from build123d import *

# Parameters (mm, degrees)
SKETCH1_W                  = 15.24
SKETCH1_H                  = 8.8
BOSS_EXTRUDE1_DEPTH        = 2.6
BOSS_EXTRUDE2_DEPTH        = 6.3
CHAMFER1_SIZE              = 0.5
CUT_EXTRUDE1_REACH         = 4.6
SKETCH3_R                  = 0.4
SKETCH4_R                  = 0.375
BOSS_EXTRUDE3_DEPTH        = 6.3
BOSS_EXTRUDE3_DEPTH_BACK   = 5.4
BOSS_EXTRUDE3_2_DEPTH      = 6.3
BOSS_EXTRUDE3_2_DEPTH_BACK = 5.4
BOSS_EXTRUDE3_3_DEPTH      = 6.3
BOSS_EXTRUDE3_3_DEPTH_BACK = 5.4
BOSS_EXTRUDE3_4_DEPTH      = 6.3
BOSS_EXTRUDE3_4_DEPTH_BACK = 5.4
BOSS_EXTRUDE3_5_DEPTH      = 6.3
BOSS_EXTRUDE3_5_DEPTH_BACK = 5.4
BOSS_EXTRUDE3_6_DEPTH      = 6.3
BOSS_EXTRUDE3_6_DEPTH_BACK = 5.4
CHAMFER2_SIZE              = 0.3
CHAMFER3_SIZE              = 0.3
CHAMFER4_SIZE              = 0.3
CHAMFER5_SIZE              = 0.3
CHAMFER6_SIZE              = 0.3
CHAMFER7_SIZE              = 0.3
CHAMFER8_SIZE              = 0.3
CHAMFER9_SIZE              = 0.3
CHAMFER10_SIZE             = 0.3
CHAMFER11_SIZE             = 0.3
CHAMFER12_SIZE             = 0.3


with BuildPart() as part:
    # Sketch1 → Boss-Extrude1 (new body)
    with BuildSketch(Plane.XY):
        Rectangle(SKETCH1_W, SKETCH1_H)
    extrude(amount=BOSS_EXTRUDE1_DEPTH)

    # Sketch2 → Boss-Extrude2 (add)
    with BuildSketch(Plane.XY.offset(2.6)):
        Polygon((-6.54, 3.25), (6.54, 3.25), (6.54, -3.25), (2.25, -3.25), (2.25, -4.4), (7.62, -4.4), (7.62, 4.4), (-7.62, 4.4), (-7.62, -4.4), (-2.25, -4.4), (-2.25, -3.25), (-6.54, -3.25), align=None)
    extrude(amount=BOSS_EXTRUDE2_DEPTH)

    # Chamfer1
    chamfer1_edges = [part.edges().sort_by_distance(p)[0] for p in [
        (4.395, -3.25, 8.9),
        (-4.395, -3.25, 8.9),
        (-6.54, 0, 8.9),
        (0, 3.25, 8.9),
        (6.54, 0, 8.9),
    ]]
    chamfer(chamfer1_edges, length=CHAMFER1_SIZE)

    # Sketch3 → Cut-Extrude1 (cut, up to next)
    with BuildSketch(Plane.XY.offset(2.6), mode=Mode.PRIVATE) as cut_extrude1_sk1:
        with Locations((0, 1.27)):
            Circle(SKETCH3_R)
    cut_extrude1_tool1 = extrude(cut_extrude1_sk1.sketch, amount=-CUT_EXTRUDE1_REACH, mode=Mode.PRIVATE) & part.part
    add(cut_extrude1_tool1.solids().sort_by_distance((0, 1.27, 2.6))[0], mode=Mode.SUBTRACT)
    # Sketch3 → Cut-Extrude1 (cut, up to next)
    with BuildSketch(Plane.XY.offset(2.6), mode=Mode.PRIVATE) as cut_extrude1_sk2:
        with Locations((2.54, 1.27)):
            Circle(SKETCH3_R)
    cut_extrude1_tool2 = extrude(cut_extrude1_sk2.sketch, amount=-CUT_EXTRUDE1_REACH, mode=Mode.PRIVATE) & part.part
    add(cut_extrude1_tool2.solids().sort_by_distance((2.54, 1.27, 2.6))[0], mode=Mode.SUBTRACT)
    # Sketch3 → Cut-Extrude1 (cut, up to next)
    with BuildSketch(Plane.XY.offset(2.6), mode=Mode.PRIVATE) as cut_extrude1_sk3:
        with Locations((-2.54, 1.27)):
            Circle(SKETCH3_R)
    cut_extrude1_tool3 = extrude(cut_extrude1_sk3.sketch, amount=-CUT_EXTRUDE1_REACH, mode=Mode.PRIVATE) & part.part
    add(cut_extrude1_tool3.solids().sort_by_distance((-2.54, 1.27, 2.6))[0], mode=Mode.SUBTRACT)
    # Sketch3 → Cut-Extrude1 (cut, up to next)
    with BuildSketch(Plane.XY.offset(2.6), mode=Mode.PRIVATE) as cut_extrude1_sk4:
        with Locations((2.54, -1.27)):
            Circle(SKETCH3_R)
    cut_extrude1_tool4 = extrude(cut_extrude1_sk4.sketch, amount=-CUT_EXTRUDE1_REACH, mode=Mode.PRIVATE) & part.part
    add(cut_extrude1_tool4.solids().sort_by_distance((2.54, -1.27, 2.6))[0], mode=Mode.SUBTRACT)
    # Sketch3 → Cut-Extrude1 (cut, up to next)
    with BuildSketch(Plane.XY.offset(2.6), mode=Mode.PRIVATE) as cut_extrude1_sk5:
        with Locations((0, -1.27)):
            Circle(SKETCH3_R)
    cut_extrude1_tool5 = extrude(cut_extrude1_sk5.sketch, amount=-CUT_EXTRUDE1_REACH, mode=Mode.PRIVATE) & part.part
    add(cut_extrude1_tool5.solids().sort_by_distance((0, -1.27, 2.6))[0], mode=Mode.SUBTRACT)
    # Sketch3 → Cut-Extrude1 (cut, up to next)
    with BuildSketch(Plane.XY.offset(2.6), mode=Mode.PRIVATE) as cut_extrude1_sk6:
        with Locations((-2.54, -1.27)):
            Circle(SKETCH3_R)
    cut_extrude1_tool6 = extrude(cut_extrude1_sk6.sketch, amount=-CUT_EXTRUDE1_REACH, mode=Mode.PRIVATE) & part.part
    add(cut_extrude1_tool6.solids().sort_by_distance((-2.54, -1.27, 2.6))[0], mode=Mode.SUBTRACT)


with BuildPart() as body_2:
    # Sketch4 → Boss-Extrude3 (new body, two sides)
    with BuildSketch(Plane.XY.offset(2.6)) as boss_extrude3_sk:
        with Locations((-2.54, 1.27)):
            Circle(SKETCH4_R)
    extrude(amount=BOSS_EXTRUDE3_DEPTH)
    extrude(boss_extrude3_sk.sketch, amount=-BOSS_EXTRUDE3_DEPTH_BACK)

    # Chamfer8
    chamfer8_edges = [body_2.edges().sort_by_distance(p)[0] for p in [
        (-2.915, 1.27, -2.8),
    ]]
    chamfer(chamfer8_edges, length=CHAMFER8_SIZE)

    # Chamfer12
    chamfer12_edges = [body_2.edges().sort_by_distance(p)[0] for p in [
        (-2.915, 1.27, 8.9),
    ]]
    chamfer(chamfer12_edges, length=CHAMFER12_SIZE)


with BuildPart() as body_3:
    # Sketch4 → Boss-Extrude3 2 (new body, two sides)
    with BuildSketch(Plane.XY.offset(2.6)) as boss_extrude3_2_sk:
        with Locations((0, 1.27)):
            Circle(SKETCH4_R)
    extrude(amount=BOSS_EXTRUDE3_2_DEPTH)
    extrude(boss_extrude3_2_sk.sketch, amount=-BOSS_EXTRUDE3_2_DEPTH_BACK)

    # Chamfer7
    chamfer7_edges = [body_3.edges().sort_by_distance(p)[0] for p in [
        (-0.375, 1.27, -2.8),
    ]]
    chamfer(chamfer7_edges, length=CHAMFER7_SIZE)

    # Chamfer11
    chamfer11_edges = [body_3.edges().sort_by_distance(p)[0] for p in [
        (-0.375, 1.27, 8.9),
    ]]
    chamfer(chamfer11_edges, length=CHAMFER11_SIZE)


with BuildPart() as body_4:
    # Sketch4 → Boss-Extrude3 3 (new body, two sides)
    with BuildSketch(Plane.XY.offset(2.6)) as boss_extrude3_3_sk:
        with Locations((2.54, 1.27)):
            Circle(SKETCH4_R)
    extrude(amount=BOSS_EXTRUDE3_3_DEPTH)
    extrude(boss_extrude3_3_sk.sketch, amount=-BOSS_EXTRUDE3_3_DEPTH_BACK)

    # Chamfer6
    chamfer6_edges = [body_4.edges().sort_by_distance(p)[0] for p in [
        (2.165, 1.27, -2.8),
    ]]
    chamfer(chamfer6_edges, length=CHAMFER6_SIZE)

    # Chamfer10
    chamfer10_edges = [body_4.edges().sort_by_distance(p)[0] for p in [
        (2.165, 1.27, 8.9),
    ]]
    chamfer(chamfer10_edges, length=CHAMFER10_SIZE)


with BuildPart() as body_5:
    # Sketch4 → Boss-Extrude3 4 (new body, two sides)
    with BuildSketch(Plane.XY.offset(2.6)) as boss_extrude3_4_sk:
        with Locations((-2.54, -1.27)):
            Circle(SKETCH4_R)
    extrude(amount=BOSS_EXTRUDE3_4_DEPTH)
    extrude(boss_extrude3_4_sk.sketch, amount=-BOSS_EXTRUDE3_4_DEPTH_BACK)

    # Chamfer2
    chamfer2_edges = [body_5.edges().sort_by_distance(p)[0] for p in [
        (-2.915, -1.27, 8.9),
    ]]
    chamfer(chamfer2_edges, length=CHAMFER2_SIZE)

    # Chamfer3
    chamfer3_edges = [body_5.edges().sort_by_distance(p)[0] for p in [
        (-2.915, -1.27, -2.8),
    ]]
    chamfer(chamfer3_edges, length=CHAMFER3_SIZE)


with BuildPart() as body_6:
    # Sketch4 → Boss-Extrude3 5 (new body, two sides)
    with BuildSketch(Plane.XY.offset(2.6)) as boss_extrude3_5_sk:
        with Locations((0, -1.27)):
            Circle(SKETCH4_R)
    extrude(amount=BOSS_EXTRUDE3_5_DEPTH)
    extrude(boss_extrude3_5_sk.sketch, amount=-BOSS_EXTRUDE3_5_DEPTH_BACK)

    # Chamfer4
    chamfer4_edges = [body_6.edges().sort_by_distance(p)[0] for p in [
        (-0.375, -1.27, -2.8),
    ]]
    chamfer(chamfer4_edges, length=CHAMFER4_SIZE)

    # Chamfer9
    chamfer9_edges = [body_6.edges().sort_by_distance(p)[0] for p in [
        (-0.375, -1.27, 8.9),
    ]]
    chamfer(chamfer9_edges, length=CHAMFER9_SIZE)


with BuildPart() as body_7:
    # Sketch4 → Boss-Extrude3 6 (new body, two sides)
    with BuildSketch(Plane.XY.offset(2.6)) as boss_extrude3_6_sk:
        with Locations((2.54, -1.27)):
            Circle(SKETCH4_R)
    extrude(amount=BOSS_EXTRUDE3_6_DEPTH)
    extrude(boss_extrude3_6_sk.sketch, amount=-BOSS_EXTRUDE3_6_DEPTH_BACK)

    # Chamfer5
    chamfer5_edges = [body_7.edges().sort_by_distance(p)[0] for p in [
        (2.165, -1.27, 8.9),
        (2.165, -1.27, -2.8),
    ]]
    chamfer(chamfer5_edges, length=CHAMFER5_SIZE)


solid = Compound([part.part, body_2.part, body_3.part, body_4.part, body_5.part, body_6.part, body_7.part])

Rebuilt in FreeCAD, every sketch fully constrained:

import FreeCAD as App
import Part
import Sketcher

V = App.Vector
Q = App.Units.Quantity


def edges_at(feature, points):
    """Names of the edges that pass closest to the given points."""
    edges = feature.Shape.Edges
    near = lambda p: min(range(len(edges)), key=lambda i: edges[i].distToShape(Part.Vertex(*p))[0])
    return sorted({f"Edge{near(p) + 1}" for p in points})


def add_polygon(sketch, points):
    """Adds a closed chain of lines whose ends are joined by coincident constraints."""
    first, n = sketch.GeometryCount, len(points)
    for a, b in zip(points, points[1:] + points[:1]):
        sketch.addGeometry(Part.LineSegment(App.Vector(*a, 0), App.Vector(*b, 0)), False)
    for i in range(n):
        sketch.addConstraint(Sketcher.Constraint("Coincident", first + i, 2, first + (i + 1) % n, 1))

doc = App.newDocument("Part")
body = doc.addObject("PartDesign::Body", "Body")

# Sketch on XY plane
sketch1 = body.newObject("Sketcher::SketchObject", "Sketch")
sketch1.AttachmentSupport = (doc.getObject("XY_Plane"), [""])
sketch1.MapMode = "FlatFace"
add_polygon(sketch1, [(-8, 4), (-8, -4), (8, -4), (8, 4)])  # lines 0-3
sketch1.addConstraint([
    Sketcher.Constraint("Vertical", 0),
    Sketcher.Constraint("Horizontal", 1),
    Sketcher.Constraint("Vertical", 2),
    Sketcher.Constraint("Horizontal", 3),
    Sketcher.Constraint("Symmetric", 0, 2, 2, 2, -1, 1),
    Sketcher.Constraint("DistanceY", 0, 2, 0, 1, Q("8.8 mm")),
    Sketcher.Constraint("DistanceX", 1, 1, 1, 2, Q("15.24 mm")),
])
pad1 = body.newObject("PartDesign::Pad", "Pad")
pad1.Profile = sketch1
pad1.Length = 2.6

# Sketch on XY plane
sketch2 = body.newObject("Sketcher::SketchObject", "Sketch001")
sketch2.AttachmentSupport = (doc.getObject("XY_Plane"), [""])
sketch2.MapMode = "FlatFace"
sketch2.AttachmentOffset = App.Placement(V(0, 0, 2.6), App.Rotation())
add_polygon(sketch2, [(-6.5, 3.2), (6.5, 3.2), (6.5, -3.2), (2.2, -3.2), (2.2, -4.4), (7.6, -4.4), (7.6, 4.4), (-7.6, 4.4), (-7.6, -4.4), (-2.2, -4.4), (-2.2, -3.2), (-6.5, -3.2)])  # lines 0-11
sketch2.addConstraint([
    Sketcher.Constraint("Horizontal", 0),
    Sketcher.Constraint("Vertical", 1),
    Sketcher.Constraint("Horizontal", 2),
    Sketcher.Constraint("Vertical", 3),
    Sketcher.Constraint("Horizontal", 4),
    Sketcher.Constraint("Vertical", 5),
    Sketcher.Constraint("Horizontal", 6),
    Sketcher.Constraint("Vertical", 7),
    Sketcher.Constraint("Horizontal", 8),
    Sketcher.Constraint("Vertical", 9),
    Sketcher.Constraint("Horizontal", 10),
    Sketcher.Constraint("Vertical", 11),
    Sketcher.Constraint("Symmetric", 4, 2, 6, 2, -1, 1),
    Sketcher.Constraint("Symmetric", 0, 2, 10, 2, -1, 1),
    Sketcher.Constraint("Symmetric", 3, 2, 8, 2, -2),
    Sketcher.Constraint("Horizontal", 2, 2, 9, 2),
    Sketcher.Constraint("DistanceY", 1, 2, 1, 1, Q("6.5 mm")),
    Sketcher.Constraint("DistanceY", 5, 1, 5, 2, Q("8.8 mm")),
    Sketcher.Constraint("DistanceX", 0, 1, 0, 2, Q("13.08 mm")),
    Sketcher.Constraint("DistanceX", 2, 2, 2, 1, Q("4.29 mm")),
    Sketcher.Constraint("DistanceX", 4, 1, 4, 2, Q("5.37 mm")),
])
pad2 = body.newObject("PartDesign::Pad", "Pad001")
pad2.Profile = sketch2
pad2.Length = 6.3
doc.recompute()

chamfer = body.newObject("PartDesign::Chamfer", "Chamfer")
chamfer.Base = (pad2, edges_at(pad2, [
    (4.395, -3.25, 8.9),
    (-4.395, -3.25, 8.9),
    (-6.54, 0, 8.9),
    (0, 3.25, 8.9),
    (6.54, 0, 8.9),
]))
chamfer.Size = 0.5

# Sketch on XY plane
sketch3 = body.newObject("Sketcher::SketchObject", "Sketch002")
sketch3.AttachmentSupport = (doc.getObject("XY_Plane"), [""])
sketch3.MapMode = "FlatFace"
sketch3.AttachmentOffset = App.Placement(V(0, 0, 2.6), App.Rotation())
sketch3.addGeometry(Part.Circle(V(0, 1.27, 0), V(0, 0, 1), 0.4), False)
sketch3.addConstraint([
    Sketcher.Constraint("PointOnObject", 0, 3, -2),
    Sketcher.Constraint("Diameter", 0, Q("0.8 mm")),
    Sketcher.Constraint("DistanceY", -1, 1, 0, 3, Q("1.27 mm")),
])
pocket1 = body.newObject("PartDesign::Pocket", "Pocket")
pocket1.Profile = sketch3
pocket1.Type = "UpToFirst"

# Sketch on XY plane
sketch4 = body.newObject("Sketcher::SketchObject", "Sketch003")
sketch4.AttachmentSupport = (doc.getObject("XY_Plane"), [""])
sketch4.MapMode = "FlatFace"
sketch4.AttachmentOffset = App.Placement(V(0, 0, 2.6), App.Rotation())
sketch4.addGeometry(Part.Circle(V(2.54, 1.27, 0), V(0, 0, 1), 0.4), False)
sketch4.addConstraint([
    Sketcher.Constraint("Diameter", 0, Q("0.8 mm")),
    Sketcher.Constraint("DistanceX", -1, 1, 0, 3, Q("2.54 mm")),
    Sketcher.Constraint("DistanceY", -1, 1, 0, 3, Q("1.27 mm")),
])
pocket2 = body.newObject("PartDesign::Pocket", "Pocket001")
pocket2.Profile = sketch4
pocket2.Type = "UpToFirst"

# Sketch on XY plane
sketch5 = body.newObject("Sketcher::SketchObject", "Sketch004")
sketch5.AttachmentSupport = (doc.getObject("XY_Plane"), [""])
sketch5.MapMode = "FlatFace"
sketch5.AttachmentOffset = App.Placement(V(0, 0, 2.6), App.Rotation())
sketch5.addGeometry(Part.Circle(V(-2.54, 1.27, 0), V(0, 0, 1), 0.4), False)
sketch5.addConstraint([
    Sketcher.Constraint("Diameter", 0, Q("0.8 mm")),
    Sketcher.Constraint("DistanceX", 0, 3, -1, 1, Q("2.54 mm")),
    Sketcher.Constraint("DistanceY", -1, 1, 0, 3, Q("1.27 mm")),
])
pocket3 = body.newObject("PartDesign::Pocket", "Pocket002")
pocket3.Profile = sketch5
pocket3.Type = "UpToFirst"

# Sketch on XY plane
sketch6 = body.newObject("Sketcher::SketchObject", "Sketch005")
sketch6.AttachmentSupport = (doc.getObject("XY_Plane"), [""])
sketch6.MapMode = "FlatFace"
sketch6.AttachmentOffset = App.Placement(V(0, 0, 2.6), App.Rotation())
sketch6.addGeometry(Part.Circle(V(2.54, -1.27, 0), V(0, 0, 1), 0.4), False)
sketch6.addConstraint([
    Sketcher.Constraint("Diameter", 0, Q("0.8 mm")),
    Sketcher.Constraint("DistanceX", -1, 1, 0, 3, Q("2.54 mm")),
    Sketcher.Constraint("DistanceY", 0, 3, -1, 1, Q("1.27 mm")),
])
pocket4 = body.newObject("PartDesign::Pocket", "Pocket003")
pocket4.Profile = sketch6
pocket4.Type = "UpToFirst"

# Sketch on XY plane
sketch7 = body.newObject("Sketcher::SketchObject", "Sketch006")
sketch7.AttachmentSupport = (doc.getObject("XY_Plane"), [""])
sketch7.MapMode = "FlatFace"
sketch7.AttachmentOffset = App.Placement(V(0, 0, 2.6), App.Rotation())
sketch7.addGeometry(Part.Circle(V(0, -1.27, 0), V(0, 0, 1), 0.4), False)
sketch7.addConstraint([
    Sketcher.Constraint("PointOnObject", 0, 3, -2),
    Sketcher.Constraint("Diameter", 0, Q("0.8 mm")),
    Sketcher.Constraint("DistanceY", 0, 3, -1, 1, Q("1.27 mm")),
])
pocket5 = body.newObject("PartDesign::Pocket", "Pocket004")
pocket5.Profile = sketch7
pocket5.Type = "UpToFirst"

# Sketch on XY plane
sketch8 = body.newObject("Sketcher::SketchObject", "Sketch007")
sketch8.AttachmentSupport = (doc.getObject("XY_Plane"), [""])
sketch8.MapMode = "FlatFace"
sketch8.AttachmentOffset = App.Placement(V(0, 0, 2.6), App.Rotation())
sketch8.addGeometry(Part.Circle(V(-2.54, -1.27, 0), V(0, 0, 1), 0.4), False)
sketch8.addConstraint([
    Sketcher.Constraint("Diameter", 0, Q("0.8 mm")),
    Sketcher.Constraint("DistanceX", 0, 3, -1, 1, Q("2.54 mm")),
    Sketcher.Constraint("DistanceY", 0, 3, -1, 1, Q("1.27 mm")),
])
pocket6 = body.newObject("PartDesign::Pocket", "Pocket005")
pocket6.Profile = sketch8
pocket6.Type = "UpToFirst"
body2 = doc.addObject("PartDesign::Body", "Body001")

# Sketch on XY plane
sketch9 = body2.newObject("Sketcher::SketchObject", "Sketch008")
sketch9.AttachmentSupport = (doc.getObject("XY_Plane001"), [""])
sketch9.MapMode = "FlatFace"
sketch9.AttachmentOffset = App.Placement(V(0, 0, 2.6), App.Rotation())
sketch9.addGeometry(Part.Circle(V(-2.54, 1.27, 0), V(0, 0, 1), 0.38), False)
sketch9.addConstraint([
    Sketcher.Constraint("Diameter", 0, Q("0.75 mm")),
    Sketcher.Constraint("DistanceX", 0, 3, -1, 1, Q("2.54 mm")),
    Sketcher.Constraint("DistanceY", -1, 1, 0, 3, Q("1.27 mm")),
])
pad3 = body2.newObject("PartDesign::Pad", "Pad002")
pad3.Profile = sketch9
pad3.Type = "TwoLengths"
pad3.Length = 6.3
pad3.Length2 = 5.4
doc.recompute()

chamfer2 = body2.newObject("PartDesign::Chamfer", "Chamfer001")
chamfer2.Base = (pad3, edges_at(pad3, [(-2.915, 1.27, -2.8)]))
chamfer2.Size = 0.3
doc.recompute()

chamfer3 = body2.newObject("PartDesign::Chamfer", "Chamfer002")
chamfer3.Base = (chamfer2, edges_at(chamfer2, [(-2.915, 1.27, 8.9)]))
chamfer3.Size = 0.3
body3 = doc.addObject("PartDesign::Body", "Body002")

# Sketch on XY plane
sketch10 = body3.newObject("Sketcher::SketchObject", "Sketch009")
sketch10.AttachmentSupport = (doc.getObject("XY_Plane002"), [""])
sketch10.MapMode = "FlatFace"
sketch10.AttachmentOffset = App.Placement(V(0, 0, 2.6), App.Rotation())
sketch10.addGeometry(Part.Circle(V(0, 1.27, 0), V(0, 0, 1), 0.38), False)
sketch10.addConstraint([
    Sketcher.Constraint("PointOnObject", 0, 3, -2),
    Sketcher.Constraint("Diameter", 0, Q("0.75 mm")),
    Sketcher.Constraint("DistanceY", -1, 1, 0, 3, Q("1.27 mm")),
])
pad4 = body3.newObject("PartDesign::Pad", "Pad003")
pad4.Profile = sketch10
pad4.Type = "TwoLengths"
pad4.Length = 6.3
pad4.Length2 = 5.4
doc.recompute()

chamfer4 = body3.newObject("PartDesign::Chamfer", "Chamfer003")
chamfer4.Base = (pad4, edges_at(pad4, [(-0.375, 1.27, -2.8)]))
chamfer4.Size = 0.3
doc.recompute()

chamfer5 = body3.newObject("PartDesign::Chamfer", "Chamfer004")
chamfer5.Base = (chamfer4, edges_at(chamfer4, [(-0.375, 1.27, 8.9)]))
chamfer5.Size = 0.3
body4 = doc.addObject("PartDesign::Body", "Body003")

# Sketch on XY plane
sketch11 = body4.newObject("Sketcher::SketchObject", "Sketch010")
sketch11.AttachmentSupport = (doc.getObject("XY_Plane003"), [""])
sketch11.MapMode = "FlatFace"
sketch11.AttachmentOffset = App.Placement(V(0, 0, 2.6), App.Rotation())
sketch11.addGeometry(Part.Circle(V(2.54, 1.27, 0), V(0, 0, 1), 0.38), False)
sketch11.addConstraint([
    Sketcher.Constraint("Diameter", 0, Q("0.75 mm")),
    Sketcher.Constraint("DistanceX", -1, 1, 0, 3, Q("2.54 mm")),
    Sketcher.Constraint("DistanceY", -1, 1, 0, 3, Q("1.27 mm")),
])
pad5 = body4.newObject("PartDesign::Pad", "Pad004")
pad5.Profile = sketch11
pad5.Type = "TwoLengths"
pad5.Length = 6.3
pad5.Length2 = 5.4
doc.recompute()

chamfer6 = body4.newObject("PartDesign::Chamfer", "Chamfer005")
chamfer6.Base = (pad5, edges_at(pad5, [(2.165, 1.27, -2.8)]))
chamfer6.Size = 0.3
doc.recompute()

chamfer7 = body4.newObject("PartDesign::Chamfer", "Chamfer006")
chamfer7.Base = (chamfer6, edges_at(chamfer6, [(2.165, 1.27, 8.9)]))
chamfer7.Size = 0.3
body5 = doc.addObject("PartDesign::Body", "Body004")

# Sketch on XY plane
sketch12 = body5.newObject("Sketcher::SketchObject", "Sketch011")
sketch12.AttachmentSupport = (doc.getObject("XY_Plane004"), [""])
sketch12.MapMode = "FlatFace"
sketch12.AttachmentOffset = App.Placement(V(0, 0, 2.6), App.Rotation())
sketch12.addGeometry(Part.Circle(V(-2.54, -1.27, 0), V(0, 0, 1), 0.38), False)
sketch12.addConstraint([
    Sketcher.Constraint("Diameter", 0, Q("0.75 mm")),
    Sketcher.Constraint("DistanceX", 0, 3, -1, 1, Q("2.54 mm")),
    Sketcher.Constraint("DistanceY", 0, 3, -1, 1, Q("1.27 mm")),
])
pad6 = body5.newObject("PartDesign::Pad", "Pad005")
pad6.Profile = sketch12
pad6.Type = "TwoLengths"
pad6.Length = 6.3
pad6.Length2 = 5.4
doc.recompute()

chamfer8 = body5.newObject("PartDesign::Chamfer", "Chamfer007")
chamfer8.Base = (pad6, edges_at(pad6, [(-2.915, -1.27, 8.9)]))
chamfer8.Size = 0.3
doc.recompute()

chamfer9 = body5.newObject("PartDesign::Chamfer", "Chamfer008")
chamfer9.Base = (chamfer8, edges_at(chamfer8, [(-2.915, -1.27, -2.8)]))
chamfer9.Size = 0.3
body6 = doc.addObject("PartDesign::Body", "Body005")

# Sketch on XY plane
sketch13 = body6.newObject("Sketcher::SketchObject", "Sketch012")
sketch13.AttachmentSupport = (doc.getObject("XY_Plane005"), [""])
sketch13.MapMode = "FlatFace"
sketch13.AttachmentOffset = App.Placement(V(0, 0, 2.6), App.Rotation())
sketch13.addGeometry(Part.Circle(V(0, -1.27, 0), V(0, 0, 1), 0.38), False)
sketch13.addConstraint([
    Sketcher.Constraint("PointOnObject", 0, 3, -2),
    Sketcher.Constraint("Diameter", 0, Q("0.75 mm")),
    Sketcher.Constraint("DistanceY", 0, 3, -1, 1, Q("1.27 mm")),
])
pad7 = body6.newObject("PartDesign::Pad", "Pad006")
pad7.Profile = sketch13
pad7.Type = "TwoLengths"
pad7.Length = 6.3
pad7.Length2 = 5.4
doc.recompute()

chamfer10 = body6.newObject("PartDesign::Chamfer", "Chamfer009")
chamfer10.Base = (pad7, edges_at(pad7, [(-0.375, -1.27, -2.8)]))
chamfer10.Size = 0.3
doc.recompute()

chamfer11 = body6.newObject("PartDesign::Chamfer", "Chamfer010")
chamfer11.Base = (chamfer10, edges_at(chamfer10, [(-0.375, -1.27, 8.9)]))
chamfer11.Size = 0.3
body7 = doc.addObject("PartDesign::Body", "Body006")

# Sketch on XY plane
sketch14 = body7.newObject("Sketcher::SketchObject", "Sketch013")
sketch14.AttachmentSupport = (doc.getObject("XY_Plane006"), [""])
sketch14.MapMode = "FlatFace"
sketch14.AttachmentOffset = App.Placement(V(0, 0, 2.6), App.Rotation())
sketch14.addGeometry(Part.Circle(V(2.54, -1.27, 0), V(0, 0, 1), 0.38), False)
sketch14.addConstraint([
    Sketcher.Constraint("Diameter", 0, Q("0.75 mm")),
    Sketcher.Constraint("DistanceX", -1, 1, 0, 3, Q("2.54 mm")),
    Sketcher.Constraint("DistanceY", 0, 3, -1, 1, Q("1.27 mm")),
])
pad8 = body7.newObject("PartDesign::Pad", "Pad007")
pad8.Profile = sketch14
pad8.Type = "TwoLengths"
pad8.Length = 6.3
pad8.Length2 = 5.4
doc.recompute()

chamfer12 = body7.newObject("PartDesign::Chamfer", "Chamfer011")
chamfer12.Base = (pad8, edges_at(pad8, [(2.165, -1.27, 8.9), (2.165, -1.27, -2.8)]))
chamfer12.Size = 0.3

doc.recompute()
